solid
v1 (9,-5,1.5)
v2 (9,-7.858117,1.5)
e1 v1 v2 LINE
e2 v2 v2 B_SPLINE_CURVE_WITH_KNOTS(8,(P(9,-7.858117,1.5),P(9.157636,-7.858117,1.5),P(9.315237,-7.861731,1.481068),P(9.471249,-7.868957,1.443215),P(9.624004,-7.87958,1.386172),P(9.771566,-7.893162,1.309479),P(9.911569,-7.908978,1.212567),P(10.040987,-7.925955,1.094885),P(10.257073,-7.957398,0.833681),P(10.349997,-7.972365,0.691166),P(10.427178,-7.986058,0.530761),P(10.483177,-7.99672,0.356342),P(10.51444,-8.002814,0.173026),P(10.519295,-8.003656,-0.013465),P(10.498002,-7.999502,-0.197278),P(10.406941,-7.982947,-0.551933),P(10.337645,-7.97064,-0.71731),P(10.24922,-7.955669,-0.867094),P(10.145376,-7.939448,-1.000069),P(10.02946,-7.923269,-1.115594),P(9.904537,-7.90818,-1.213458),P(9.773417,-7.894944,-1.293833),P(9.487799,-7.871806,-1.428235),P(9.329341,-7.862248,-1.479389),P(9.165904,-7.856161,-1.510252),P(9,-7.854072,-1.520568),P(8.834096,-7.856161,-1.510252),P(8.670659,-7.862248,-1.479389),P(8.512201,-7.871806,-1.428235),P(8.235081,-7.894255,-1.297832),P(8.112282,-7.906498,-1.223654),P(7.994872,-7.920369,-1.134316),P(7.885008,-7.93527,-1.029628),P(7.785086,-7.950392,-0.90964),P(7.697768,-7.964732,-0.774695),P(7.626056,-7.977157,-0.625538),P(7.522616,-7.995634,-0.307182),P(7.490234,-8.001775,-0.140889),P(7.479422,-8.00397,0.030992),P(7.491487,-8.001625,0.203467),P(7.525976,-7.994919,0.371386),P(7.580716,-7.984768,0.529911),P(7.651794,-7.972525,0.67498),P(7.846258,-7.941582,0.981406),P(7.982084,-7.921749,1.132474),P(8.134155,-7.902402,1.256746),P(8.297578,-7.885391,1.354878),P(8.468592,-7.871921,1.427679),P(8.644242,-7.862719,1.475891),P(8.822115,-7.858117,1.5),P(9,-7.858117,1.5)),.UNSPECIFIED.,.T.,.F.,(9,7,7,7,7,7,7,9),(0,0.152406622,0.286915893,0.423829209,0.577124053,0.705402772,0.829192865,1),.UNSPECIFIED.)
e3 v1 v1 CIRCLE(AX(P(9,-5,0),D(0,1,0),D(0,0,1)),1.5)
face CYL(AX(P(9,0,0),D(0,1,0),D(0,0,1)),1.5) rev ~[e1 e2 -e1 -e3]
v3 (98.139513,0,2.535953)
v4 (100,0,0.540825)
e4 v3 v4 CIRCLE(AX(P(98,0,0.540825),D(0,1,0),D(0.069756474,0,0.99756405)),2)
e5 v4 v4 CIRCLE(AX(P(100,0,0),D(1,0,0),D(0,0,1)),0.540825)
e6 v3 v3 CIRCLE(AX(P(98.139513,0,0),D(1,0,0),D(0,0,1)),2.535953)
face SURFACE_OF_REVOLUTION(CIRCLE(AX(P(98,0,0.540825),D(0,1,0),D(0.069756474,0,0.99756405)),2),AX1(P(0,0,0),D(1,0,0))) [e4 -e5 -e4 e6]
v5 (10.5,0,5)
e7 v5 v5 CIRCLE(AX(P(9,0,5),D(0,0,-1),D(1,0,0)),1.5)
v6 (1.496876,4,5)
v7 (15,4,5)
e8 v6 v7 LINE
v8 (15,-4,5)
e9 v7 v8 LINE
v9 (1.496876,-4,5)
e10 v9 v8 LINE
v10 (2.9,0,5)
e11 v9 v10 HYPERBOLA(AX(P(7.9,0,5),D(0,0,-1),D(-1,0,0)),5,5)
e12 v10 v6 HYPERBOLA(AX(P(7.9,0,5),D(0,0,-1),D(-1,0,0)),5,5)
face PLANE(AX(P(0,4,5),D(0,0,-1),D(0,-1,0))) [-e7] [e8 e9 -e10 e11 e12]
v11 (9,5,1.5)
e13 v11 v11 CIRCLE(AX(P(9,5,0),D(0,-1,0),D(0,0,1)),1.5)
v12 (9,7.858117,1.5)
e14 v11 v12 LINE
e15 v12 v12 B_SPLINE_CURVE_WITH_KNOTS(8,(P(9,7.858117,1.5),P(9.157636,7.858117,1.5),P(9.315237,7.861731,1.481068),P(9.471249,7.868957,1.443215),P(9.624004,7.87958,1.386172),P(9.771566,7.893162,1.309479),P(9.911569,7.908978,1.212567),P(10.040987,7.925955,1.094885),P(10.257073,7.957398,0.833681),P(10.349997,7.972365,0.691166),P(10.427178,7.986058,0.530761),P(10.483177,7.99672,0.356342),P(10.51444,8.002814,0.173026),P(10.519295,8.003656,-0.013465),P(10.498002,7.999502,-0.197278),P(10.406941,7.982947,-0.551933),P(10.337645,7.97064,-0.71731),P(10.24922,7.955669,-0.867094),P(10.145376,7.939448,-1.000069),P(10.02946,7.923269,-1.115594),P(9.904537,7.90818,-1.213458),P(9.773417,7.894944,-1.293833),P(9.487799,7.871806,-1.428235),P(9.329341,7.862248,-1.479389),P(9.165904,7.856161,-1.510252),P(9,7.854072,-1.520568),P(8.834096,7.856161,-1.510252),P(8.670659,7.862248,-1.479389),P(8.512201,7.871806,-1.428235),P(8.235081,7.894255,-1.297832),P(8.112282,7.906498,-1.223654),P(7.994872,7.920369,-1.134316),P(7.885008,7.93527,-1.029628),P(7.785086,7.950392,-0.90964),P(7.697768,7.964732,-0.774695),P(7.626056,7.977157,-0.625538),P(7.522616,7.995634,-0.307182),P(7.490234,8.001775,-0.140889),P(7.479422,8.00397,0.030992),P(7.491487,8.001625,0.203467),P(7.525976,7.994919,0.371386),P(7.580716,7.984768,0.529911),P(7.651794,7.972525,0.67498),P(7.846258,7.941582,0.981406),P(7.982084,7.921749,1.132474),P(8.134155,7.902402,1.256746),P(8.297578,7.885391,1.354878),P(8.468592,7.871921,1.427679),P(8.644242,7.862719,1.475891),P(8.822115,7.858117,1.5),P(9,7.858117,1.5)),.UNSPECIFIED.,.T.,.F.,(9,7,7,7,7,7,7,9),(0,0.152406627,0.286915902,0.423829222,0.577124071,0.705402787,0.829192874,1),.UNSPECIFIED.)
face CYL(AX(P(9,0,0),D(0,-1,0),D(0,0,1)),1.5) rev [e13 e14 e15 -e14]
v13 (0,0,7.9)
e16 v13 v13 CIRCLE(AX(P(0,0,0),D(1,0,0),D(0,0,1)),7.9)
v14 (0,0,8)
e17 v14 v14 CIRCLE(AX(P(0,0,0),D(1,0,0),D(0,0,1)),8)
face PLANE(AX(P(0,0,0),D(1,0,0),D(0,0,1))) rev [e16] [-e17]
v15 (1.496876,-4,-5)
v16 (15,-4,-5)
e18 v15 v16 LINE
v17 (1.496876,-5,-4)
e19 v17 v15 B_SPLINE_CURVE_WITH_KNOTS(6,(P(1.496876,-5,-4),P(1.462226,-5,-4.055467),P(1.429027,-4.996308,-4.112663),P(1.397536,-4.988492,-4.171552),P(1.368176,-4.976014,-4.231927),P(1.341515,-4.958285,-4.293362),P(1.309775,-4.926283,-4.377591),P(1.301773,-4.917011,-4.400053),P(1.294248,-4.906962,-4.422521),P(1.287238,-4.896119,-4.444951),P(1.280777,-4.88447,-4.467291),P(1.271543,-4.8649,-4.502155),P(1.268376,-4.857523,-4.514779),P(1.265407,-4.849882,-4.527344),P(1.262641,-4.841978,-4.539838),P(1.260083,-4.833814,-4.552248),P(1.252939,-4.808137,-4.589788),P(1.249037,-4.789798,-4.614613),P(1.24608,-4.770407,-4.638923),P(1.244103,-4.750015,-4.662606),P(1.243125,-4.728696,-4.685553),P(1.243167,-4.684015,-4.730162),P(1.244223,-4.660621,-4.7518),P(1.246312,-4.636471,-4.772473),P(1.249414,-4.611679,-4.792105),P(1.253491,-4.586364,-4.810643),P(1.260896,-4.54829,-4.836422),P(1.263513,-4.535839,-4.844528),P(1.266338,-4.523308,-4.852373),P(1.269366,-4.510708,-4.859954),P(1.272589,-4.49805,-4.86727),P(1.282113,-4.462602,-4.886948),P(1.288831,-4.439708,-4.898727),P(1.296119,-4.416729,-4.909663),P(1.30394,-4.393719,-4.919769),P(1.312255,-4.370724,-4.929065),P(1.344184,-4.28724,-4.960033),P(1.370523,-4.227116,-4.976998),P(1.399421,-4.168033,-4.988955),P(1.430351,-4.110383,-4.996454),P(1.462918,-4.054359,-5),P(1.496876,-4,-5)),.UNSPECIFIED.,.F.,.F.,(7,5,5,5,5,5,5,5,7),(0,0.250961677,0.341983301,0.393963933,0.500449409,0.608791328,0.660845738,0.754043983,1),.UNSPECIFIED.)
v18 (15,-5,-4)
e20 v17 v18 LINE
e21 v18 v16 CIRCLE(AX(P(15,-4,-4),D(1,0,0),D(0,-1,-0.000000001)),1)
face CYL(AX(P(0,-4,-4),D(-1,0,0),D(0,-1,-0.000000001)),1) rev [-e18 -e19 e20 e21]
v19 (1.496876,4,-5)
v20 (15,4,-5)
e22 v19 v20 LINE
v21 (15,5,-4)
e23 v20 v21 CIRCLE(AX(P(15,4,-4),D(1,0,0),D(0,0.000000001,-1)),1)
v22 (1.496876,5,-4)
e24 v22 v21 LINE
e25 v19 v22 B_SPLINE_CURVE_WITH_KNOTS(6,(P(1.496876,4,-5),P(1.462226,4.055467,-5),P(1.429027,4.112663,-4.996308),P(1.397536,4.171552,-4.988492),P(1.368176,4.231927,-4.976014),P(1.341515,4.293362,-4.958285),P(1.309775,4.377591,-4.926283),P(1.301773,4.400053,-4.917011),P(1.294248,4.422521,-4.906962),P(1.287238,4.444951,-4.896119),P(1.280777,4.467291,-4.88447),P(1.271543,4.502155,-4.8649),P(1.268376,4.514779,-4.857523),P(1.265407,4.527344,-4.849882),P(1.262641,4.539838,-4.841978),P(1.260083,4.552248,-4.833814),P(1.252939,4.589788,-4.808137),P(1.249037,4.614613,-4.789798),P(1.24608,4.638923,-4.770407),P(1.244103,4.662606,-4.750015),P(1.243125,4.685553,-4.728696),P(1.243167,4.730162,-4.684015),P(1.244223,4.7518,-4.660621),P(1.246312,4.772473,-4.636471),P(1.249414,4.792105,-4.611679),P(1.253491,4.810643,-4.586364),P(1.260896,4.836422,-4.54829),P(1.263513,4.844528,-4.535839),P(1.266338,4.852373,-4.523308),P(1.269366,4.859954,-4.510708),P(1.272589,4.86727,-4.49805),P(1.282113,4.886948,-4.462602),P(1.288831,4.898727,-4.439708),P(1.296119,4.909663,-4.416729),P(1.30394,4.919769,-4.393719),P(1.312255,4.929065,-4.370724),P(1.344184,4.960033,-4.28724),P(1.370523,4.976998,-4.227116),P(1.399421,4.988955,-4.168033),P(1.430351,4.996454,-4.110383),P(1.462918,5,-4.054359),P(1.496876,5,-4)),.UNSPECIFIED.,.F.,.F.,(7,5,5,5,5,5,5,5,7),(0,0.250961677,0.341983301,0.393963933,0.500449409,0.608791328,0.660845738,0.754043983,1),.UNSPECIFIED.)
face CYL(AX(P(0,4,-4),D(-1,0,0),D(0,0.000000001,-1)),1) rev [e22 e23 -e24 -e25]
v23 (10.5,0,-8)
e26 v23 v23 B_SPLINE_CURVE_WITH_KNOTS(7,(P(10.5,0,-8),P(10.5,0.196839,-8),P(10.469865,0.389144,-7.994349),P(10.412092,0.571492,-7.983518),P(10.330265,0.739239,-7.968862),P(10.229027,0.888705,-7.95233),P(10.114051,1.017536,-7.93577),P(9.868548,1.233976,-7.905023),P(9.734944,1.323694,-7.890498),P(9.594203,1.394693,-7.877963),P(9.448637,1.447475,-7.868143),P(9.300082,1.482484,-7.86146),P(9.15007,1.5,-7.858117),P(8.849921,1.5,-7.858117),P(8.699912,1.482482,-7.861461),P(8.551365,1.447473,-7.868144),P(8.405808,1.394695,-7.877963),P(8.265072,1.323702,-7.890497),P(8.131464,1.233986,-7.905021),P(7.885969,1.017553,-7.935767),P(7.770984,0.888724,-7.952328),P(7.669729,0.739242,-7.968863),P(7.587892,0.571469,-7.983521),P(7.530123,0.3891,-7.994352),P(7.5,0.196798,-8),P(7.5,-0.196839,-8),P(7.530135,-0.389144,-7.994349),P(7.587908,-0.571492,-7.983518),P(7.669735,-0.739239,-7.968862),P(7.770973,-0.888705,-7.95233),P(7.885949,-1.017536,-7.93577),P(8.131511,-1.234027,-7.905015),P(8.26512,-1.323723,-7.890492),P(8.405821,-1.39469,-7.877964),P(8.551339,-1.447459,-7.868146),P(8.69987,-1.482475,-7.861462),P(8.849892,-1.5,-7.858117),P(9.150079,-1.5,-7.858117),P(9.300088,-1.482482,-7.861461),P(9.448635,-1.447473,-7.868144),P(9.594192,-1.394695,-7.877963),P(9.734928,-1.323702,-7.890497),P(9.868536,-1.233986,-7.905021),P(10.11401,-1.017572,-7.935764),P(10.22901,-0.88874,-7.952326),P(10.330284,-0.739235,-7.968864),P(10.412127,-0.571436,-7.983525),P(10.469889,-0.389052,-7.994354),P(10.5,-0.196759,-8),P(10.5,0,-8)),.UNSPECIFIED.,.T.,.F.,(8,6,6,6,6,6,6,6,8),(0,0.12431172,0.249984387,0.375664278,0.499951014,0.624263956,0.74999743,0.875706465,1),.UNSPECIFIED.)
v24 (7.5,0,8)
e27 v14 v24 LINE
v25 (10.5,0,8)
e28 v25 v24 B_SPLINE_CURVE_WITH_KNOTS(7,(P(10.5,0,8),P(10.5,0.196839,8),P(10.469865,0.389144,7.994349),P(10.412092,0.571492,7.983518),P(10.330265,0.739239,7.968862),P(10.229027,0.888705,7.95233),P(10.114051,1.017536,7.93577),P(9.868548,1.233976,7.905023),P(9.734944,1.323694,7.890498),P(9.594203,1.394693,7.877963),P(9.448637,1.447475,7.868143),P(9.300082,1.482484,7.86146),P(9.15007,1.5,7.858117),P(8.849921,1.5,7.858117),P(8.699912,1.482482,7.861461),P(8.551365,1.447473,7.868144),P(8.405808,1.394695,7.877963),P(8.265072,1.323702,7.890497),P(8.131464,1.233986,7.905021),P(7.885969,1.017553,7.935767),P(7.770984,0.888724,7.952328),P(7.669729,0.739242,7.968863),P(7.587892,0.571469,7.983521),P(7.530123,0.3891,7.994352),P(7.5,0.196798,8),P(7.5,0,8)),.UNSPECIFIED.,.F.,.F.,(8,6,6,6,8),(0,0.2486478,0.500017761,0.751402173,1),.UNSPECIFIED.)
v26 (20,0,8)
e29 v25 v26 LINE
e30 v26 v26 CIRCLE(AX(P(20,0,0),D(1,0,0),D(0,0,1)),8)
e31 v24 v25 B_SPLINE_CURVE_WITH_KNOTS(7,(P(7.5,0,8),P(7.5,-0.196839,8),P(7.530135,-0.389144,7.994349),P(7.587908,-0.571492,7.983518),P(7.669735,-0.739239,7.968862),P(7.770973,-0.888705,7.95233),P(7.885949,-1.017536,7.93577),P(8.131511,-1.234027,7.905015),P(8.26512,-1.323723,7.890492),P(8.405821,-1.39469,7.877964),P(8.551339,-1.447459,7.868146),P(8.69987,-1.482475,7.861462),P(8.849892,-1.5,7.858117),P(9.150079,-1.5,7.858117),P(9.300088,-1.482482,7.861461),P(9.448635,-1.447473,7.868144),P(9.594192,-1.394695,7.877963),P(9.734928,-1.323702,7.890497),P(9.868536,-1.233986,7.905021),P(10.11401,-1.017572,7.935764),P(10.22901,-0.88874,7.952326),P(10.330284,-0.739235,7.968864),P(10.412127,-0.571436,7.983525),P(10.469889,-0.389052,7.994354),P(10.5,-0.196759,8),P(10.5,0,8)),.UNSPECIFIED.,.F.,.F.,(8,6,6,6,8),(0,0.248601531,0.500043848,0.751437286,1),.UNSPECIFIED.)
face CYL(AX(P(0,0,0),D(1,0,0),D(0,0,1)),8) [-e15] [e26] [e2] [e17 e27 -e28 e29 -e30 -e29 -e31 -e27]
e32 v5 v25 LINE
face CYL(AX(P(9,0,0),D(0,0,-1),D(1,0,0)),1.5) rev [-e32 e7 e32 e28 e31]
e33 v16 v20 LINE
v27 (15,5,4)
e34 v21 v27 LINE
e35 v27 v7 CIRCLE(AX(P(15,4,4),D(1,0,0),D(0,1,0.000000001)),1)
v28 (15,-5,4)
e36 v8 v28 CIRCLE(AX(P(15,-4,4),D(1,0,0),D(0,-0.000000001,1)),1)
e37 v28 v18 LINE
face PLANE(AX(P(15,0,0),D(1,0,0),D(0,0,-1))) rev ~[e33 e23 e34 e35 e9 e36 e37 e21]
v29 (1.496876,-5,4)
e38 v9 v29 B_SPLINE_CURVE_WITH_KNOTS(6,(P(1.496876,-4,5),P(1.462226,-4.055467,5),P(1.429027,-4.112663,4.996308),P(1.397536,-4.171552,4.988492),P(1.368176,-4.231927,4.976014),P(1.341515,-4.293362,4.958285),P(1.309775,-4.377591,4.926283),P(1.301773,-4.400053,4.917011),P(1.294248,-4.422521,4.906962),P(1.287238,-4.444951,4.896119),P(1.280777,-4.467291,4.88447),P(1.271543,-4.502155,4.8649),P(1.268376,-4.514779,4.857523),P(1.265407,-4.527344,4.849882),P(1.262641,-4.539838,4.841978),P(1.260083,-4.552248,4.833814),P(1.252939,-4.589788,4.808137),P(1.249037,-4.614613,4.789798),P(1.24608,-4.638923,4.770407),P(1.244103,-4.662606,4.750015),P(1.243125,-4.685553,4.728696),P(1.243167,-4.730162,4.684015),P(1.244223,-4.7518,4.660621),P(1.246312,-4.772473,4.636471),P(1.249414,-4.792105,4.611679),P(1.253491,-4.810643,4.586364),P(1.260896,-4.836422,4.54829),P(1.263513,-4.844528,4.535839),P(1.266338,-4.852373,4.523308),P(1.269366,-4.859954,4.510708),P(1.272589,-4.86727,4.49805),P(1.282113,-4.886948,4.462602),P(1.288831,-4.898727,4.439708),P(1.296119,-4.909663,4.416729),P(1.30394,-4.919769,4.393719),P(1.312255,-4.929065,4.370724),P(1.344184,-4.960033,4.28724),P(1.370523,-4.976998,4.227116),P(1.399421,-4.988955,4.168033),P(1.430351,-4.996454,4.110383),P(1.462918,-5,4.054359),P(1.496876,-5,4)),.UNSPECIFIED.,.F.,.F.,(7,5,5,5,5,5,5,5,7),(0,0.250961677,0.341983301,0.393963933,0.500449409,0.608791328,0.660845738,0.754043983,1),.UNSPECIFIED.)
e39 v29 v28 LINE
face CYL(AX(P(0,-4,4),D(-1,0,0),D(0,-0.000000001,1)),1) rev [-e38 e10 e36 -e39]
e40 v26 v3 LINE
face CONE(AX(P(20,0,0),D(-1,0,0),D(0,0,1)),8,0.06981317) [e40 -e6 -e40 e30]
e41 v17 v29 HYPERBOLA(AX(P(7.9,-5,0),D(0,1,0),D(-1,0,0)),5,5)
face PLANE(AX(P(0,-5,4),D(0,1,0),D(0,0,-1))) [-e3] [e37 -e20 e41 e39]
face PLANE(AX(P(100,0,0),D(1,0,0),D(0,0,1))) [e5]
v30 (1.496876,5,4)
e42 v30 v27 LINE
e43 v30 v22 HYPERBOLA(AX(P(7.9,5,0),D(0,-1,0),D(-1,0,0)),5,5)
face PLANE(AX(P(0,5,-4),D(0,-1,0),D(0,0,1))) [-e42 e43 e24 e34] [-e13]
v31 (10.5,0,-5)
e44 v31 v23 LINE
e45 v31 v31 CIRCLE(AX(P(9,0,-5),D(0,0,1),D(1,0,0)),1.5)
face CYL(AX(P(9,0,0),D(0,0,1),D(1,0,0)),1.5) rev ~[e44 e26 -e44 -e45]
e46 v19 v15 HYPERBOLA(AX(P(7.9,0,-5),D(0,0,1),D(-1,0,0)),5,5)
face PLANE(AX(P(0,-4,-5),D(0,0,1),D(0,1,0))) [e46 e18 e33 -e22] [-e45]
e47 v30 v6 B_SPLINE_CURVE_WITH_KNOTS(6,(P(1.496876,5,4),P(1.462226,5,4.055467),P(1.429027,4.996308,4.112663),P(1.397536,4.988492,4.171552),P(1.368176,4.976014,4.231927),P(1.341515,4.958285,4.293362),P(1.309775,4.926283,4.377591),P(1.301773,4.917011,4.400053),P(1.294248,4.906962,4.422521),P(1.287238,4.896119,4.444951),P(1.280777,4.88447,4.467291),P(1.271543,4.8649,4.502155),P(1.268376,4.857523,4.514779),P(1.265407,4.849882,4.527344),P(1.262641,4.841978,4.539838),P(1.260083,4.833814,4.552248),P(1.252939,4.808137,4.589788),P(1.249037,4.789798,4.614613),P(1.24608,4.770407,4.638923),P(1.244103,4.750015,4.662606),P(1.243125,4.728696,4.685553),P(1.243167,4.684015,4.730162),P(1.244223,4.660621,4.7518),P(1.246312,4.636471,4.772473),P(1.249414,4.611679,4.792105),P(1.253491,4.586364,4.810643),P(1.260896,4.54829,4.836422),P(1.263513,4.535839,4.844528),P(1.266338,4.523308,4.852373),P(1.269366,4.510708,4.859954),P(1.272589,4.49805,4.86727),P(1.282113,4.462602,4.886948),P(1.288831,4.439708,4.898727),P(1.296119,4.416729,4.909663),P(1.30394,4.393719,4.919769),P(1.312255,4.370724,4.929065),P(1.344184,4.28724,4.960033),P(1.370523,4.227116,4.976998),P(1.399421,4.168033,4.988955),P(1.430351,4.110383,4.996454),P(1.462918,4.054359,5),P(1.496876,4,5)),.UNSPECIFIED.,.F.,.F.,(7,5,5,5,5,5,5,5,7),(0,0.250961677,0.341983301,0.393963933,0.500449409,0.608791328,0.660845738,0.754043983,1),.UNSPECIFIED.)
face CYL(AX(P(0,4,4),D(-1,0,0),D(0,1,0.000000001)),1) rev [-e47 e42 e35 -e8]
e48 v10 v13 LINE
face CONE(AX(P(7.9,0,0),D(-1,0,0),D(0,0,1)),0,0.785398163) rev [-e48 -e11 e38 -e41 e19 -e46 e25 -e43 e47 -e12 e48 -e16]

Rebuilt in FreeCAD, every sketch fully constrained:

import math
import FreeCAD as App
import Part
import Sketcher

V = App.Vector
Q = App.Units.Quantity

doc = App.newDocument("Part")
params = doc.addObject("Spreadsheet::Sheet", "Params")
for row, (alias, value) in enumerate([
    ("sketch1_radius", "2 mm"),
    ("sketch1_width", "20 mm"),
    ("sketch1_width2", "92.1 mm"),
    ("sketch1_height", "0.1 mm"),
    ("revolution_angle", "360 deg"),
    ("sketch2_radius", "1 mm"),
    ("sketch2_width", "8 mm"),
    ("pocket1_length", "15 mm"),
    ("sketch3_diameter", "3 mm"),
    ("sketch4_diameter", "3 mm"),
], start=1):
    params.set(f"A{row}", alias)
    params.set(f"B{row}", "=" + value)
    params.setAlias(f"B{row}", alias)

body = doc.addObject("PartDesign::Body", "Body")

sketch1 = body.newObject("Sketcher::SketchObject", "Sketch")
sketch1.AttachmentSupport = (doc.getObject("XY_Plane"), [""])
sketch1.MapMode = "FlatFace"
sketch1.addGeometry([
    Part.LineSegment(V(0, 7.9, 0), V(7.9, 0, 0)),
    Part.LineSegment(V(7.9, 0, 0), V(100, 0, 0)),
    Part.LineSegment(V(100, 0, 0), V(100, 0.54, 0)),
    Part.ArcOfCircle(Part.Circle(V(98, 0.54, 0), V(0, 0, 1), 2), math.radians(0), math.radians(86)),
    Part.LineSegment(V(98.14, 2.54, 0), V(20, 8, 0)),
    Part.LineSegment(V(20, 8, 0), V(0, 8, 0)),
    Part.LineSegment(V(0, 8, 0), V(0, 7.9, 0)),
], False)
sketch1.addConstraint([
    Sketcher.Constraint("Coincident", 0, 2, 1, 1),
    Sketcher.Constraint("Coincident", 1, 2, 2, 1),
    Sketcher.Constraint("Tangent", 2, 2, 3, 1),
    Sketcher.Constraint("Tangent", 3, 2, 4, 1),
    Sketcher.Constraint("Coincident", 4, 2, 5, 1),
    Sketcher.Constraint("Coincident", 5, 2, 6, 1),
    Sketcher.Constraint("Coincident", 6, 2, 0, 1),
    Sketcher.Constraint("Horizontal", 1),
    Sketcher.Constraint("Vertical", 2),
    Sketcher.Constraint("Horizontal", 5),
    Sketcher.Constraint("Vertical", 6),
    Sketcher.Constraint("PointOnObject", 0, 2, -1),
    Sketcher.Constraint("PointOnObject", 5, 2, -2),
    Sketcher.Constraint("Radius", 3, Q("2 mm")),
    Sketcher.Constraint("DistanceX", 5, 2, 5, 1, Q("20 mm")),
    Sketcher.Constraint("Angle", 0, Q("-45 deg")),
    Sketcher.Constraint("Angle", 4, Q("176 deg")),
    Sketcher.Constraint("DistanceX", 1, 1, 1, 2, Q("92.1 mm")),
    Sketcher.Constraint("DistanceY", 6, 2, 6, 1, Q("0.1 mm")),
    Sketcher.Constraint("DistanceX", -1, 1, 3, 3, Q("98 mm")),
])
sketch1.setExpression("Constraints[13]", "Params.sketch1_radius")
sketch1.setExpression("Constraints[14]", "Params.sketch1_width")
sketch1.setExpression("Constraints[17]", "Params.sketch1_width2")
sketch1.setExpression("Constraints[18]", "Params.sketch1_height")
revolution = body.newObject("PartDesign::Revolution", "Revolution")
revolution.Profile = sketch1
revolution.ReferenceAxis = (sketch1, ["H_Axis"])
revolution.setExpression("Angle", "Params.revolution_angle")

sketch2 = body.newObject("Sketcher::SketchObject", "Sketch001")
sketch2.AttachmentSupport = (doc.getObject("YZ_Plane"), [""])
sketch2.MapMode = "FlatFace"
sketch2.addGeometry([
    Part.LineSegment(V(5, -4, 0), V(5, 4, 0)),
    Part.ArcOfCircle(Part.Circle(V(4, 4, 0), V(0, 0, 1), 1), math.radians(0), math.radians(90)),
    Part.LineSegment(V(4, 5, 0), V(-4, 5, 0)),
    Part.ArcOfCircle(Part.Circle(V(-4, 4, 0), V(0, 0, 1), 1), math.radians(90), math.radians(180)),
    Part.LineSegment(V(-5, 4, 0), V(-5, -4, 0)),
    Part.ArcOfCircle(Part.Circle(V(-4, -4, 0), V(0, 0, 1), 1), math.radians(-180), math.radians(-90)),
    Part.LineSegment(V(-4, -5, 0), V(4, -5, 0)),
    Part.ArcOfCircle(Part.Circle(V(4, -4, 0), V(0, 0, 1), 1), math.radians(-90), math.radians(0)),
], False)
sketch2.addConstraint([
    Sketcher.Constraint("Tangent", 0, 2, 1, 1),
    Sketcher.Constraint("Tangent", 1, 2, 2, 1),
    Sketcher.Constraint("Tangent", 2, 2, 3, 1),
    Sketcher.Constraint("Tangent", 3, 2, 4, 1),
    Sketcher.Constraint("Tangent", 4, 2, 5, 1),
    Sketcher.Constraint("Tangent", 5, 2, 6, 1),
    Sketcher.Constraint("Tangent", 6, 2, 7, 1),
    Sketcher.Constraint("Tangent", 7, 2, 0, 1),
    Sketcher.Constraint("Vertical", 0),
    Sketcher.Constraint("Horizontal", 2),
    Sketcher.Constraint("Vertical", 4),
    Sketcher.Constraint("Horizontal", 6),
    Sketcher.Constraint("Equal", 1, 3),
    Sketcher.Constraint("Equal", 3, 5),
    Sketcher.Constraint("Equal", 5, 7),
    Sketcher.Constraint("Symmetric", 1, 3, 5, 3, -1, 1),
    Sketcher.Constraint("Equal", 6, 0),
    Sketcher.Constraint("Radius", 1, Q("1 mm")),
    Sketcher.Constraint("DistanceX", 2, 2, 2, 1, Q("8 mm")),
])
sketch2.setExpression("Constraints[17]", "Params.sketch2_radius")
sketch2.setExpression("Constraints[18]", "Params.sketch2_width")
pocket1 = body.newObject("PartDesign::Pocket", "Pocket")
pocket1.Profile = sketch2
pocket1.setExpression("Length", "Params.pocket1_length")
pocket1.Reversed = True

sketch3 = body.newObject("Sketcher::SketchObject", "Sketch002")
sketch3.AttachmentSupport = (doc.getObject("XZ_Plane"), [""])
sketch3.MapMode = "FlatFace"
sketch3.addGeometry(Part.Circle(V(9, 0, 0), V(0, 0, 1), 1.5), False)
sketch3.addConstraint([
    Sketcher.Constraint("PointOnObject", 0, 3, -1),
    Sketcher.Constraint("Diameter", 0, Q("3 mm")),
    Sketcher.Constraint("DistanceX", -1, 1, 0, 3, Q("9 mm")),
])
sketch3.setExpression("Constraints[1]", "Params.sketch3_diameter")
pocket2 = body.newObject("PartDesign::Pocket", "Pocket001")
pocket2.Profile = sketch3
pocket2.Type = "ThroughAll"
pocket2.Midplane = True

sketch4 = body.newObject("Sketcher::SketchObject", "Sketch003")
sketch4.AttachmentSupport = (doc.getObject("XY_Plane"), [""])
sketch4.MapMode = "FlatFace"
sketch4.addGeometry(Part.Circle(V(9, 0, 0), V(0, 0, 1), 1.5), False)
sketch4.addConstraint([
    Sketcher.Constraint("PointOnObject", 0, 3, -1),
    Sketcher.Constraint("Diameter", 0, Q("3 mm")),
    Sketcher.Constraint("DistanceX", -1, 1, 0, 3, Q("9 mm")),
])
sketch4.setExpression("Constraints[1]", "Params.sketch4_diameter")
pocket3 = body.newObject("PartDesign::Pocket", "Pocket002")
pocket3.Profile = sketch4
pocket3.Type = "ThroughAll"
pocket3.Midplane = True

doc.recompute()
